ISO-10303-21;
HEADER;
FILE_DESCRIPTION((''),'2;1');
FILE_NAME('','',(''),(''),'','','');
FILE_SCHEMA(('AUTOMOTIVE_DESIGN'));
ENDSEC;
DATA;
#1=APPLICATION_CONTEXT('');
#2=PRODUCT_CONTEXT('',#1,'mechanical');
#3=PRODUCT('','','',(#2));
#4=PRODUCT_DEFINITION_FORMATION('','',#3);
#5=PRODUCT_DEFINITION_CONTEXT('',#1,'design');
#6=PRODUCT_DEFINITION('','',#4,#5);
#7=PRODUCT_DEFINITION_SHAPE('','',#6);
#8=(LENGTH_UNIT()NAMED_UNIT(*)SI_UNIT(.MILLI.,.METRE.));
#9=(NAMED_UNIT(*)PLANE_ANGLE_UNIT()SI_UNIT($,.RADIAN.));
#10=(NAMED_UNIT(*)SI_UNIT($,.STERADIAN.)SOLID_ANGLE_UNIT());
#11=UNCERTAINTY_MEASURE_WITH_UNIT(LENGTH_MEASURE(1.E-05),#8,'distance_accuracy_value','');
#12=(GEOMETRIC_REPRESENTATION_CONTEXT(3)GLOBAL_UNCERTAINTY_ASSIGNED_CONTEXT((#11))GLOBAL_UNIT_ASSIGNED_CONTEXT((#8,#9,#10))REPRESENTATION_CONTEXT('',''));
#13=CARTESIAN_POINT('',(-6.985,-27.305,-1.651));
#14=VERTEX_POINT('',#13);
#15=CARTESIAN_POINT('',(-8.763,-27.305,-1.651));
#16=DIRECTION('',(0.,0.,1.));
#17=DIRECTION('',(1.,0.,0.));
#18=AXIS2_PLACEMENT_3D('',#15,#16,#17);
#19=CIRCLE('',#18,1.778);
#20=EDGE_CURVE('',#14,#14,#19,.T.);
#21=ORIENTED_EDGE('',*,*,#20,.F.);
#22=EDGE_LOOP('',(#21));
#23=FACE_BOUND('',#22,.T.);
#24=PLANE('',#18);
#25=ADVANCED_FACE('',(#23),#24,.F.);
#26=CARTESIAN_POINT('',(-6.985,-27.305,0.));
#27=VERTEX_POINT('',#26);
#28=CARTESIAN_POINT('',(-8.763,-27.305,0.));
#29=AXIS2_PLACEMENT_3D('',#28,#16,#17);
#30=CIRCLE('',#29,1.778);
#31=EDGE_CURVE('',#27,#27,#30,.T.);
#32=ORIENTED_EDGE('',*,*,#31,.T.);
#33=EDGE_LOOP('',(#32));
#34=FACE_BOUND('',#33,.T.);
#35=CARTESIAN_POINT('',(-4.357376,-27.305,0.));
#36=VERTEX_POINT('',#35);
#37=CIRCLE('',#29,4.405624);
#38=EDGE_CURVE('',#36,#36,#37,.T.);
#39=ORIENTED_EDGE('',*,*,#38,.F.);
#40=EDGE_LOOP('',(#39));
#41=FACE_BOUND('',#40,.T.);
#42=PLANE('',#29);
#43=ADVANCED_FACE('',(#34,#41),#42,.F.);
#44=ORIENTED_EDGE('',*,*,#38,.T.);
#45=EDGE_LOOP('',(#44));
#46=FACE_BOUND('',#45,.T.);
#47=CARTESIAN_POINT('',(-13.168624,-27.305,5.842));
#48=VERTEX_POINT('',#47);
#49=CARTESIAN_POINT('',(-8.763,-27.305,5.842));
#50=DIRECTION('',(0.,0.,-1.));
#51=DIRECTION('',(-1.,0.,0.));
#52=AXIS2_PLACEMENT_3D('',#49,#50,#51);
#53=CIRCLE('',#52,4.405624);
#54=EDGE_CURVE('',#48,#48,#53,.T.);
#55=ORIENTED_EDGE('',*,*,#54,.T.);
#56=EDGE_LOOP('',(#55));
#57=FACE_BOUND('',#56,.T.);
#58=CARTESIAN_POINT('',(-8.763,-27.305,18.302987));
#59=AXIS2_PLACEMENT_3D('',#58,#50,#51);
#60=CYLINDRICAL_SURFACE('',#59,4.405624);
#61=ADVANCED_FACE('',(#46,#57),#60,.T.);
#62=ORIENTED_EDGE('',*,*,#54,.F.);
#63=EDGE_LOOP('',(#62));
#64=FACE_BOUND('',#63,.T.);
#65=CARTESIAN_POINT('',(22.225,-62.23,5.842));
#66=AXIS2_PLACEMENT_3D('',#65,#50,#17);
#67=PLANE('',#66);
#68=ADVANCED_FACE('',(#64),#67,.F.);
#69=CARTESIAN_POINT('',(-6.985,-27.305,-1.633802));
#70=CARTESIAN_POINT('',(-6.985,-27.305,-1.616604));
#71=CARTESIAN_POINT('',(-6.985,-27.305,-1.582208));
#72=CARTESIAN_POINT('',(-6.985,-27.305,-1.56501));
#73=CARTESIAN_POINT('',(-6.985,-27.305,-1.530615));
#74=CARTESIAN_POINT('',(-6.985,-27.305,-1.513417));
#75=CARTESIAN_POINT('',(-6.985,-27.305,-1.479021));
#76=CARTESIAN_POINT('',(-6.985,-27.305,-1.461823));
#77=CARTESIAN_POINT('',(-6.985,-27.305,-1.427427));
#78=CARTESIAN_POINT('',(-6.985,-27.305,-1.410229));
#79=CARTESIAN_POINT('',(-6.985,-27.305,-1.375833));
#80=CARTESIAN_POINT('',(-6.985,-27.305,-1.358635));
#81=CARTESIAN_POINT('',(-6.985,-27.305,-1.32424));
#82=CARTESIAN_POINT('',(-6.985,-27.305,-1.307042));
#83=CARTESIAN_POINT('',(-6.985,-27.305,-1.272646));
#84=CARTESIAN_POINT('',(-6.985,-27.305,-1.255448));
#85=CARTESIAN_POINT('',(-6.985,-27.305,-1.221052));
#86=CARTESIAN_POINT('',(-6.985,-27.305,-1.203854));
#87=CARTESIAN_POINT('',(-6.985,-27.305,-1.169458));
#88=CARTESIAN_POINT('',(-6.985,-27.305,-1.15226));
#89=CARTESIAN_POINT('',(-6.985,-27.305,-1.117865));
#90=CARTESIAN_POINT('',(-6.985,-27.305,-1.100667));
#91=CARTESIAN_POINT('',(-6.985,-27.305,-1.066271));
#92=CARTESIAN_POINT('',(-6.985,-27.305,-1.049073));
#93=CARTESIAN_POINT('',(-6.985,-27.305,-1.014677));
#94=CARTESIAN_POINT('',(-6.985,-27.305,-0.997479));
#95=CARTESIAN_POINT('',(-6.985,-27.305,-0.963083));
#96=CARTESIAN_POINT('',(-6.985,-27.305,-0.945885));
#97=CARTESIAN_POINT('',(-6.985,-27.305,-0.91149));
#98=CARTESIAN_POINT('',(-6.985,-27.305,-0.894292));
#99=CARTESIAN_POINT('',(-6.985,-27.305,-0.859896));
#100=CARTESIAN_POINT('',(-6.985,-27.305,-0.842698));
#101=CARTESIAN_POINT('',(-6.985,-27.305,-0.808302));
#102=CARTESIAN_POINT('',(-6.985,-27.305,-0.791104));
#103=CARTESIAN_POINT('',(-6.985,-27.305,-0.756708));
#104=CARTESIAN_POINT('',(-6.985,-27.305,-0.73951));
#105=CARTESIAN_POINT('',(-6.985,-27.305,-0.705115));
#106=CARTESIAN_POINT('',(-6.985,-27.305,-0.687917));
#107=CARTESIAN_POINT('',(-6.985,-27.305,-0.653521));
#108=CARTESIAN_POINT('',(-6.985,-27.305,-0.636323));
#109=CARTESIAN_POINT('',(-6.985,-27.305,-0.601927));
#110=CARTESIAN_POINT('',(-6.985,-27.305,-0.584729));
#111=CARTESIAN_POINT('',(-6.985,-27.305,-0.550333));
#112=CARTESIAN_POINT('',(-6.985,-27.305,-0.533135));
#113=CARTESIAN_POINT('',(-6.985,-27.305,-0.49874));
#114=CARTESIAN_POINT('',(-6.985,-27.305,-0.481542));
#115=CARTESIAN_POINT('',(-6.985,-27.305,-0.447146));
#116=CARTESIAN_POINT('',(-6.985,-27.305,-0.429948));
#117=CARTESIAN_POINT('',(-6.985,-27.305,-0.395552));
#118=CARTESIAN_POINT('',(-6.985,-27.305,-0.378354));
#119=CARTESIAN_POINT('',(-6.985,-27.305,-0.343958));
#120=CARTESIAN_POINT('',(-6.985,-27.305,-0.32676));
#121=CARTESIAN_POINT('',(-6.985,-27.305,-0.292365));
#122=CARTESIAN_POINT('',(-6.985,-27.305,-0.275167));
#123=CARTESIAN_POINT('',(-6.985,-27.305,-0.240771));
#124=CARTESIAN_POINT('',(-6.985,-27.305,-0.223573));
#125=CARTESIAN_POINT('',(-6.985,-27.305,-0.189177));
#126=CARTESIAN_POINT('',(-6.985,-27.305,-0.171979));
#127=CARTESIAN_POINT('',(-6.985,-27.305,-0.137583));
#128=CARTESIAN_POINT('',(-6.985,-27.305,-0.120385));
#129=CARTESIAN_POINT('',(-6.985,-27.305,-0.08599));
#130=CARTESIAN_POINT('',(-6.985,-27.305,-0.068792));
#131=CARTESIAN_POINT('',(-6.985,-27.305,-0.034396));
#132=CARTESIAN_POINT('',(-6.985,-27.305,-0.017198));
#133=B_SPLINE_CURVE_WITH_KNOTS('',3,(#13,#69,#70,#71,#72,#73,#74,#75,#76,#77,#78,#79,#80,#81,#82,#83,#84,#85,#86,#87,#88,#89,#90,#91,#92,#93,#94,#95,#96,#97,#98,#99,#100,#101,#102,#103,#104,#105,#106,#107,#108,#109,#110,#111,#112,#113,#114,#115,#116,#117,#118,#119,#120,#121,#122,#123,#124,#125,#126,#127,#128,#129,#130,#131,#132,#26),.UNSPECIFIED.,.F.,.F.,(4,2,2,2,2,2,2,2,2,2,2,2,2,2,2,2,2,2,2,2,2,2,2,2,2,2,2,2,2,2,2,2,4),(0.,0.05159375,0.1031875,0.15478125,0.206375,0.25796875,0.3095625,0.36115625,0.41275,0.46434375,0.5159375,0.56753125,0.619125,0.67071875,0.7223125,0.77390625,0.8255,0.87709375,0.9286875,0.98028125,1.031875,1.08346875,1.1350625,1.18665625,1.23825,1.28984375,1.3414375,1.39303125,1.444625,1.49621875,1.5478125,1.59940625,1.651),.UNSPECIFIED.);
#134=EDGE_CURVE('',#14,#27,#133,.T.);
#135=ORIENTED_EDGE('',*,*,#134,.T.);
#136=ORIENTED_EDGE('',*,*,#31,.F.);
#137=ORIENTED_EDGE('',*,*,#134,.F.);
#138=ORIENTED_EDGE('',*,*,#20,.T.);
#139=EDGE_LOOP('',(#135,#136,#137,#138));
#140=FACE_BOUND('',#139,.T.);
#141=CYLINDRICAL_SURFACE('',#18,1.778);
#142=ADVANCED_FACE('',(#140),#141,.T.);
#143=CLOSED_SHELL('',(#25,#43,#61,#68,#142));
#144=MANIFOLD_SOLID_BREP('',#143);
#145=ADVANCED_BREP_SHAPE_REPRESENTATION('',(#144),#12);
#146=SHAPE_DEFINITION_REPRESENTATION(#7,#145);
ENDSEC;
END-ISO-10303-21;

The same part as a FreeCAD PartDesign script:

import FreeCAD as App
import Part
import Sketcher

V = App.Vector
Q = App.Units.Quantity

doc = App.newDocument("Part")
body = doc.addObject("PartDesign::Body", "Body")

# Sketch on XY plane
sketch1 = doc.addObject("Sketcher::SketchObject", "Sketch")
body.addObject(sketch1)
sketch1.AttachmentSupport = (doc.XY_Plane, [""])
sketch1.MapMode = "FlatFace"
sketch1.addGeometry(Part.Circle(V(-8.763, -27.305, 0), V(0, 0, 1), 1.778), False)
sketch1.addConstraint([
    Sketcher.Constraint("Diameter", 0, Q("0.14 in")),
    Sketcher.Constraint("DistanceX", 0, 3, -1, 1, Q("0.345 in")),
    Sketcher.Constraint("DistanceY", 0, 3, -1, 1, Q("1.075 in")),
])
pad1 = doc.addObject("PartDesign::Pad", "Pad")
body.addObject(pad1)
pad1.Profile = sketch1
pad1.Length = Q("0.065 in")
pad1.Reversed = True

# Sketch on XY plane
sketch2 = doc.addObject("Sketcher::SketchObject", "Sketch001")
body.addObject(sketch2)
sketch2.AttachmentSupport = (doc.XY_Plane, [""])
sketch2.MapMode = "FlatFace"
sketch2.addGeometry(Part.Circle(V(-8.763, -27.305, 0), V(0, 0, 1), 4.405624), False)
sketch2.addConstraint([
    Sketcher.Constraint("Diameter", 0, 8.811248),
    Sketcher.Constraint("DistanceX", 0, 3, -1, 1, Q("0.345 in")),
    Sketcher.Constraint("DistanceY", 0, 3, -1, 1, Q("1.075 in")),
])
pad2 = doc.addObject("PartDesign::Pad", "Pad001")
body.addObject(pad2)
pad2.Profile = sketch2
pad2.Length = Q("0.23 in")

doc.recompute()
